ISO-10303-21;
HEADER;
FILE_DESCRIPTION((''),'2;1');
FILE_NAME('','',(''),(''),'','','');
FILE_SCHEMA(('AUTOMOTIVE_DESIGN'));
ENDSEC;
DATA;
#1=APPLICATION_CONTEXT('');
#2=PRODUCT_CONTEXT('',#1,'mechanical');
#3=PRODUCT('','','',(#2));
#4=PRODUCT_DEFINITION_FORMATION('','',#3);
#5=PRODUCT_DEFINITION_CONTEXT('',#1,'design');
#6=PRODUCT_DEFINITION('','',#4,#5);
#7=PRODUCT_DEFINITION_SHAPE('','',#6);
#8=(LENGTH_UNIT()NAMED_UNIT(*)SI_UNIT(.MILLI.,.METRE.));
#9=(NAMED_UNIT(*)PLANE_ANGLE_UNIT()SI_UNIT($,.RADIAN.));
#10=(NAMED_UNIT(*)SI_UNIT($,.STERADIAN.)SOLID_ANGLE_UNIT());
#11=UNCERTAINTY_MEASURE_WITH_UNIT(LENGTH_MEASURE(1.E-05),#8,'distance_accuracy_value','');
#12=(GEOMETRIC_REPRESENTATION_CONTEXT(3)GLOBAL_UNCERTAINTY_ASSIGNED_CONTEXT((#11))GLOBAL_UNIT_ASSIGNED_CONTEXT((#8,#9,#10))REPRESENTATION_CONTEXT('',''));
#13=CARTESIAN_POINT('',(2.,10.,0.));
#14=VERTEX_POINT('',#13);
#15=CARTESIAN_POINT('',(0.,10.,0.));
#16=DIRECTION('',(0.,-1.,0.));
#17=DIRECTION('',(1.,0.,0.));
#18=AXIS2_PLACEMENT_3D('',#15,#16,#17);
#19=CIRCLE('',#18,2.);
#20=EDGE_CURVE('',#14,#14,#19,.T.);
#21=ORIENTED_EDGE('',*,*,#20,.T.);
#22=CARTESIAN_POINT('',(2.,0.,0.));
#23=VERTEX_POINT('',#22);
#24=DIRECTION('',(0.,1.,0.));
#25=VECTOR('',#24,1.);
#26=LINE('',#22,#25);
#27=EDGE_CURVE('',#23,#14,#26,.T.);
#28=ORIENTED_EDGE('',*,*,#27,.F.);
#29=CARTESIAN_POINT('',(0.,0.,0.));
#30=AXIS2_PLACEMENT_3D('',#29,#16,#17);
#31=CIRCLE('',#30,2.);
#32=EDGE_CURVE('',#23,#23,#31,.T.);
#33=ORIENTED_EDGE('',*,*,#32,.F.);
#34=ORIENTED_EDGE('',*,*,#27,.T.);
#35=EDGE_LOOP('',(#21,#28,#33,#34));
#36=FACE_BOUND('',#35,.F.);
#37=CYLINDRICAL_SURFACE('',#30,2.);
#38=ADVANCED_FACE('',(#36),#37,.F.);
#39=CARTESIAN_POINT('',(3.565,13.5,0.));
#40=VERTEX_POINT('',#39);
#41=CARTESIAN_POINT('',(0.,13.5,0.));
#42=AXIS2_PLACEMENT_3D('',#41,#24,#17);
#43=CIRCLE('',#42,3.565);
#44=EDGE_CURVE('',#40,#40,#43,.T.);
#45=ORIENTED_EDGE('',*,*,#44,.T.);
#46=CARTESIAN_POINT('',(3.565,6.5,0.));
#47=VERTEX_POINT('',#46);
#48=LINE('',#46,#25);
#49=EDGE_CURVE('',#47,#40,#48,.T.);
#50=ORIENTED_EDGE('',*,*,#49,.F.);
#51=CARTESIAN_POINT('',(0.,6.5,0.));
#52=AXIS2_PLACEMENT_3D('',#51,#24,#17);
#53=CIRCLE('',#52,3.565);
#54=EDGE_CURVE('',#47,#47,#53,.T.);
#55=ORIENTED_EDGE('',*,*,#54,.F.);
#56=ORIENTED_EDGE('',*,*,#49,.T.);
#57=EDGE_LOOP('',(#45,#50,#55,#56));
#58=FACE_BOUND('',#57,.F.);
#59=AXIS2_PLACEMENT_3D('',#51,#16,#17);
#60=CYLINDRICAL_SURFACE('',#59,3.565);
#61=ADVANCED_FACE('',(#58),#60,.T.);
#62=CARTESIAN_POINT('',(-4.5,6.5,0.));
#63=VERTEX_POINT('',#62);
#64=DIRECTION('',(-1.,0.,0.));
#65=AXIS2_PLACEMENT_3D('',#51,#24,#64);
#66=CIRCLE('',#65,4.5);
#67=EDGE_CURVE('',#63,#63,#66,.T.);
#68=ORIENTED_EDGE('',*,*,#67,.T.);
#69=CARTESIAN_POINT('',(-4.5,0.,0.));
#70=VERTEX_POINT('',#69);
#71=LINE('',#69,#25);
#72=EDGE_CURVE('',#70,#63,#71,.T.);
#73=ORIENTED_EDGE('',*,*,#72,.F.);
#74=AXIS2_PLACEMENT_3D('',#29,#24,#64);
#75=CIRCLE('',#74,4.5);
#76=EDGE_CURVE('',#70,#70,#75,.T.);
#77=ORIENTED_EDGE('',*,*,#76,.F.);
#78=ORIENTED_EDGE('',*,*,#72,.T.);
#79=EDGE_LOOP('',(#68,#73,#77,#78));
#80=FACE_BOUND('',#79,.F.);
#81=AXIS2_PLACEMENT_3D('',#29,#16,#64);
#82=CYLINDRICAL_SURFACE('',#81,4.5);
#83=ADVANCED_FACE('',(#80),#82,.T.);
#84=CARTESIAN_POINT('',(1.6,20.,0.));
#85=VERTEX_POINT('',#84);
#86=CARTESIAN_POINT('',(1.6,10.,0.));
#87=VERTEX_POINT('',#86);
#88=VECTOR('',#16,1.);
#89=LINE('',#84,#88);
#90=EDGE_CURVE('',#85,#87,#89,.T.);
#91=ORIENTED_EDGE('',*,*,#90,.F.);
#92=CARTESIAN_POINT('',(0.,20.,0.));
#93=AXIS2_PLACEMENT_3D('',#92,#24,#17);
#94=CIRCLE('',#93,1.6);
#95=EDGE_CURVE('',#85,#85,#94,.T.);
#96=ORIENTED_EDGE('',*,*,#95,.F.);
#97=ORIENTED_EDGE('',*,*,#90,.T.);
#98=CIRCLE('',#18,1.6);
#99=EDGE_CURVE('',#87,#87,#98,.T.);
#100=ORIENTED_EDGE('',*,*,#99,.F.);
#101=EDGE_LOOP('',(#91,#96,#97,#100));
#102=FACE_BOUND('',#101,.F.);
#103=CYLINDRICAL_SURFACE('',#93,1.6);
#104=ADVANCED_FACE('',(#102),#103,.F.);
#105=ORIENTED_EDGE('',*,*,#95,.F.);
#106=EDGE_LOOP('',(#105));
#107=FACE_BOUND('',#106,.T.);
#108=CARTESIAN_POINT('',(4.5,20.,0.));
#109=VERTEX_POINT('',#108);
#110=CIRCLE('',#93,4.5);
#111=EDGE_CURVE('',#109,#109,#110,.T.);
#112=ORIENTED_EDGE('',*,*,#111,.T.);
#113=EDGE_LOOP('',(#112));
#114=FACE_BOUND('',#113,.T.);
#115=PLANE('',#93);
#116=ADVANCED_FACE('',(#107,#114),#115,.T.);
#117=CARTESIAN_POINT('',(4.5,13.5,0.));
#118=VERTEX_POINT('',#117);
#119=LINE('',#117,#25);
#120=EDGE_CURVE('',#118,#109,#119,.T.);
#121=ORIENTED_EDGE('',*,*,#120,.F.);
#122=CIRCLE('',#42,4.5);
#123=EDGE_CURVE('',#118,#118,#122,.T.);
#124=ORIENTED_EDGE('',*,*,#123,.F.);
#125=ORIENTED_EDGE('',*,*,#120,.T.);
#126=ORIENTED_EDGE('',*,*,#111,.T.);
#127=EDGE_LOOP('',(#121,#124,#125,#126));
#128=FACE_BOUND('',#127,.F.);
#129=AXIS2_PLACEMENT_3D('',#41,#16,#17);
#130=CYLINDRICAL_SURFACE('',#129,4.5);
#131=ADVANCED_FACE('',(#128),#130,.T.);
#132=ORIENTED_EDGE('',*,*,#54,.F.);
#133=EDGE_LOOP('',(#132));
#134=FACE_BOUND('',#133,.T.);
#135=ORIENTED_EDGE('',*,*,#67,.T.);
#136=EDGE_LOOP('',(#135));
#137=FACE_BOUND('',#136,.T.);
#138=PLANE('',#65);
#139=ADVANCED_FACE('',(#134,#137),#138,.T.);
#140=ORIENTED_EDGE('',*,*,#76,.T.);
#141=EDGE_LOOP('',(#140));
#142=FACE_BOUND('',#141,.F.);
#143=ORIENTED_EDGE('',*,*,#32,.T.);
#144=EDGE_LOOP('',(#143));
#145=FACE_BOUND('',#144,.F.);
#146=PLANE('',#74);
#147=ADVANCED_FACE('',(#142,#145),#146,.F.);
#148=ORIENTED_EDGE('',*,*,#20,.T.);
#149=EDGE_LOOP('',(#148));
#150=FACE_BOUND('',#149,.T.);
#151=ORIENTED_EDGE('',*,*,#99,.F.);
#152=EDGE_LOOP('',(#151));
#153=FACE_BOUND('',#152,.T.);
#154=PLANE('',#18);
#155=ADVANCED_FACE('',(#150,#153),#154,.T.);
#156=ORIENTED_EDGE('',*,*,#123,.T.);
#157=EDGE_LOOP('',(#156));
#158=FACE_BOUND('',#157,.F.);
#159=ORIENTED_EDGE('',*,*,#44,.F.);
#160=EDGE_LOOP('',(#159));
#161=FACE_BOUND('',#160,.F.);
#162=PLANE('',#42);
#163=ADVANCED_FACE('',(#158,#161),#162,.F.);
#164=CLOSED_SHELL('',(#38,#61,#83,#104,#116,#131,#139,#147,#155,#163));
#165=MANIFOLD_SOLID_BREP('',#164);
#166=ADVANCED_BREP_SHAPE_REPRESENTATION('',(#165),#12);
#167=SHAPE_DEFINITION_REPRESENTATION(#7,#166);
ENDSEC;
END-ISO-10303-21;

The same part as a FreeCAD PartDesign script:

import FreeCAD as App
import Part
import Sketcher

doc = App.newDocument("Part")
params = doc.addObject("Spreadsheet::Sheet", "Params")
for row, (alias, value) in enumerate([
    ("sketch1_diameter", "9 mm"),
    ("pad1_length", "6.5 mm"),
    ("sketch2_diameter", "7.13 mm"),
    ("pad2_length", "7 mm"),
    ("sketch3_diameter", "9 mm"),
    ("pad3_length", "6.5 mm"),
    ("sketch4_diameter", "3.2 mm"),
    ("pocket1_length", "20 mm"),
    ("sketch5_diameter", "4 mm"),
    ("sketch5_diameter2", "3.2 mm"),
    ("pocket2_length", "10 mm"),
], start=1):
    params.set(f"A{row}", alias)
    params.set(f"B{row}", "=" + value)
    params.setAlias(f"B{row}", alias)

body = doc.addObject("PartDesign::Body", "Body")

# Sketch on XZ plane
sketch1 = body.newObject("Sketcher::SketchObject", "Sketch")
sketch1.AttachmentSupport = (doc.getObject("XZ_Plane"), [""])
sketch1.MapMode = "FlatFace"
sketch1.addGeometry(Part.Circle(App.Vector(0, 0, 0), App.Vector(0, 0, 1), 4.5), False)
sketch1.addConstraint(Sketcher.Constraint("Coincident", 0, 3, -1, 1))
sketch1.addConstraint(Sketcher.Constraint("Diameter", 0, 9.0))
sketch1.setExpression("Constraints[1]", "Params.sketch1_diameter")
pad1 = body.newObject("PartDesign::Pad", "Pad")
pad1.Profile = sketch1
pad1.setExpression("Length", "Params.pad1_length")
pad1.Reversed = True

# Sketch on XZ plane
sketch2 = body.newObject("Sketcher::SketchObject", "Sketch001")
sketch2.AttachmentSupport = (doc.getObject("XZ_Plane"), [""])
sketch2.MapMode = "FlatFace"
sketch2.AttachmentOffset = App.Placement(App.Vector(0, 0, -6.5), App.Rotation())
sketch2.addGeometry(Part.Circle(App.Vector(0, 0, 0), App.Vector(0, 0, 1), 3.6), False)
sketch2.addConstraint(Sketcher.Constraint("Coincident", 0, 3, -1, 1))
sketch2.addConstraint(Sketcher.Constraint("Diameter", 0, 7.13))
sketch2.setExpression("Constraints[1]", "Params.sketch2_diameter")
pad2 = body.newObject("PartDesign::Pad", "Pad001")
pad2.Profile = sketch2
pad2.setExpression("Length", "Params.pad2_length")
pad2.Reversed = True

# Sketch on XZ plane
sketch3 = body.newObject("Sketcher::SketchObject", "Sketch002")
sketch3.AttachmentSupport = (doc.getObject("XZ_Plane"), [""])
sketch3.MapMode = "FlatFace"
sketch3.AttachmentOffset = App.Placement(App.Vector(0, 0, -13.5), App.Rotation())
sketch3.addGeometry(Part.Circle(App.Vector(0, 0, 0), App.Vector(0, 0, 1), 4.5), False)
sketch3.addConstraint(Sketcher.Constraint("Coincident", 0, 3, -1, 1))
sketch3.addConstraint(Sketcher.Constraint("Diameter", 0, 9.0))
sketch3.setExpression("Constraints[1]", "Params.sketch3_diameter")
pad3 = body.newObject("PartDesign::Pad", "Pad002")
pad3.Profile = sketch3
pad3.setExpression("Length", "Params.pad3_length")
pad3.Reversed = True

# Sketch on XZ plane
sketch4 = body.newObject("Sketcher::SketchObject", "Sketch003")
sketch4.AttachmentSupport = (doc.getObject("XZ_Plane"), [""])
sketch4.MapMode = "FlatFace"
sketch4.AttachmentOffset = App.Placement(App.Vector(0, 0, -20), App.Rotation())
sketch4.addGeometry(Part.Circle(App.Vector(0, 0, 0), App.Vector(0, 0, 1), 1.6), False)
sketch4.addConstraint(Sketcher.Constraint("Coincident", 0, 3, -1, 1))
sketch4.addConstraint(Sketcher.Constraint("Diameter", 0, 3.2))
sketch4.setExpression("Constraints[1]", "Params.sketch4_diameter")
pocket1 = body.newObject("PartDesign::Pocket", "Pocket")
pocket1.Profile = sketch4
pocket1.setExpression("Length", "Params.pocket1_length")
pocket1.Reversed = True

# Sketch on XZ plane
sketch5 = body.newObject("Sketcher::SketchObject", "Sketch004")
sketch5.AttachmentSupport = (doc.getObject("XZ_Plane"), [""])
sketch5.MapMode = "FlatFace"
sketch5.addGeometry(Part.Circle(App.Vector(0, 0, 0), App.Vector(0, 0, 1), 2), False)
sketch5.addGeometry(Part.Circle(App.Vector(0, 0, 0), App.Vector(0, 0, 1), 1.6), False)
sketch5.addConstraint(Sketcher.Constraint("Coincident", 0, 3, -1, 1))
sketch5.addConstraint(Sketcher.Constraint("Coincident", 1, 3, -1, 1))
sketch5.addConstraint(Sketcher.Constraint("Diameter", 0, 4.0))
sketch5.addConstraint(Sketcher.Constraint("Diameter", 1, 3.2))
sketch5.setExpression("Constraints[2]", "Params.sketch5_diameter")
sketch5.setExpression("Constraints[3]", "Params.sketch5_diameter2")
pocket2 = body.newObject("PartDesign::Pocket", "Pocket001")
pocket2.Profile = sketch5
pocket2.setExpression("Length", "Params.pocket2_length")

doc.recompute()
